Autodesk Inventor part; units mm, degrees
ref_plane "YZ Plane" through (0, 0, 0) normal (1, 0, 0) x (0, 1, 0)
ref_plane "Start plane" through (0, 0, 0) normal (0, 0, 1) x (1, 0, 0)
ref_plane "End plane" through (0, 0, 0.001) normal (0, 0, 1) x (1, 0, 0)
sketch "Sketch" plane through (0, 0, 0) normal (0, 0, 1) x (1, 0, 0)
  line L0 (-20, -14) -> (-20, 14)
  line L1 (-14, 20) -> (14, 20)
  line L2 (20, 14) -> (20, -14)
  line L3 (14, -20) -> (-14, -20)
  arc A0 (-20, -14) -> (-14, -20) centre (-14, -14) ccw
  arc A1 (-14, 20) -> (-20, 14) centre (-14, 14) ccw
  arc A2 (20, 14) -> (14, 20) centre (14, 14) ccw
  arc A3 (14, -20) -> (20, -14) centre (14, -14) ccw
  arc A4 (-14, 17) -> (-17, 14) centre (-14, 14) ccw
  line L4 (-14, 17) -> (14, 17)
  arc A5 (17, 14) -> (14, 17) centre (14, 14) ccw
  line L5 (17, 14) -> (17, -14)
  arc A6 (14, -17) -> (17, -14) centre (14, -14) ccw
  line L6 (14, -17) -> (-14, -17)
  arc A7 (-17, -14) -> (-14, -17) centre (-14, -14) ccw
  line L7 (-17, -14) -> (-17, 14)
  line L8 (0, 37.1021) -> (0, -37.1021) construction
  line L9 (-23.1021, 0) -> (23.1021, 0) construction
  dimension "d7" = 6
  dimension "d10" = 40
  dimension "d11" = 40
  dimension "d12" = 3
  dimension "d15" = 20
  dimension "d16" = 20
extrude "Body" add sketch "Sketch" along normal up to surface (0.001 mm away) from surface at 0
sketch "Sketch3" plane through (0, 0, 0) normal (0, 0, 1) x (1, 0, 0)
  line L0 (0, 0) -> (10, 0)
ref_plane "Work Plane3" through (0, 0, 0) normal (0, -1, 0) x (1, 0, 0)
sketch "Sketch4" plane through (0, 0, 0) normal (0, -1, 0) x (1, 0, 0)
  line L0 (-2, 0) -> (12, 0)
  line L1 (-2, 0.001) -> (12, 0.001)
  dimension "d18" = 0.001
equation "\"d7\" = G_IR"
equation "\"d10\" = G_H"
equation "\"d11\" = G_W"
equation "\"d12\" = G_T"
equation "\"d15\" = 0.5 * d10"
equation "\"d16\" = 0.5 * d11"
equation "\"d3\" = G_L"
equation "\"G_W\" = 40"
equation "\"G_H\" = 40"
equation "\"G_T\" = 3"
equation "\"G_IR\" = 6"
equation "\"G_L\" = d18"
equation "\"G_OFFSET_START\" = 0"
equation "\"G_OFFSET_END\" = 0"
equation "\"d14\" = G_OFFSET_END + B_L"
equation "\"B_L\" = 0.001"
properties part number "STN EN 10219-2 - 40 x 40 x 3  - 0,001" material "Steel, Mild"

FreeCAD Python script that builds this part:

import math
import FreeCAD as App
import Part
import Sketcher
from FreeCAD import Vector

doc = App.newDocument("Part")
body = doc.addObject("PartDesign::Body", "Body")

sketch1 = body.newObject("Sketcher::SketchObject", "Sketch")
sketch1.AttachmentSupport = (doc.getObject("XY_Plane"), [""])
sketch1.MapMode = "FlatFace"
sketch1.addGeometry([
    Part.LineSegment(Vector(-20, 14, 0), Vector(-20, -14, 0)),
    Part.ArcOfCircle(Part.Circle(Vector(-14, -14, 0), Vector(0, 0, 1), 6), math.radians(180), math.radians(270)),
    Part.LineSegment(Vector(-14, -20, 0), Vector(14, -20, 0)),
    Part.ArcOfCircle(Part.Circle(Vector(14, -14, 0), Vector(0, 0, 1), 6), math.radians(-90), math.radians(0)),
    Part.LineSegment(Vector(20, -14, 0), Vector(20, 14, 0)),
    Part.ArcOfCircle(Part.Circle(Vector(14, 14, 0), Vector(0, 0, 1), 6), math.radians(0), math.radians(90)),
    Part.LineSegment(Vector(14, 20, 0), Vector(-14, 20, 0)),
    Part.ArcOfCircle(Part.Circle(Vector(-14, 14, 0), Vector(0, 0, 1), 6), math.radians(90), math.radians(180)),
    Part.ArcOfCircle(Part.Circle(Vector(-14, 14, 0), Vector(0, 0, 1), 3), math.radians(90), math.radians(180)),
    Part.LineSegment(Vector(-14, 17, 0), Vector(14, 17, 0)),
    Part.ArcOfCircle(Part.Circle(Vector(14, 14, 0), Vector(0, 0, 1), 3), math.radians(0), math.radians(90)),
    Part.LineSegment(Vector(17, 14, 0), Vector(17, -14, 0)),
    Part.ArcOfCircle(Part.Circle(Vector(14, -14, 0), Vector(0, 0, 1), 3), math.radians(-90), math.radians(0)),
    Part.LineSegment(Vector(14, -17, 0), Vector(-14, -17, 0)),
    Part.ArcOfCircle(Part.Circle(Vector(-14, -14, 0), Vector(0, 0, 1), 3), math.radians(180), math.radians(270)),
    Part.LineSegment(Vector(-17, -14, 0), Vector(-17, 14, 0)),
], False)
sketch1.addConstraint([
    Sketcher.Constraint("Tangent", 0, 2, 1, 1),
    Sketcher.Constraint("Tangent", 1, 2, 2, 1),
    Sketcher.Constraint("Tangent", 2, 2, 3, 1),
    Sketcher.Constraint("Tangent", 3, 2, 4, 1),
    Sketcher.Constraint("Tangent", 4, 2, 5, 1),
    Sketcher.Constraint("Tangent", 5, 2, 6, 1),
    Sketcher.Constraint("Tangent", 6, 2, 7, 1),
    Sketcher.Constraint("Tangent", 7, 2, 0, 1),
    Sketcher.Constraint("Tangent", 8, 1, 9, 1),
    Sketcher.Constraint("Tangent", 9, 2, 10, 2),
    Sketcher.Constraint("Tangent", 10, 1, 11, 1),
    Sketcher.Constraint("Tangent", 11, 2, 12, 2),
    Sketcher.Constraint("Tangent", 12, 1, 13, 1),
    Sketcher.Constraint("Tangent", 13, 2, 14, 2),
    Sketcher.Constraint("Tangent", 14, 1, 15, 1),
    Sketcher.Constraint("Tangent", 15, 2, 8, 2),
    Sketcher.Constraint("Vertical", 0),
    Sketcher.Constraint("Horizontal", 2),
    Sketcher.Constraint("Vertical", 4),
    Sketcher.Constraint("Horizontal", 6),
    Sketcher.Constraint("Horizontal", 9),
    Sketcher.Constraint("Vertical", 11),
    Sketcher.Constraint("Horizontal", 13),
    Sketcher.Constraint("Vertical", 15),
    Sketcher.Constraint("Coincident", 8, 3, 7, 3),
    Sketcher.Constraint("Coincident", 10, 3, 5, 3),
    Sketcher.Constraint("Coincident", 12, 3, 3, 3),
    Sketcher.Constraint("Equal", 1, 3),
    Sketcher.Constraint("Equal", 3, 5),
    Sketcher.Constraint("Equal", 5, 7),
    Sketcher.Constraint("Equal", 12, 14),
    Sketcher.Constraint("Symmetric", 1, 3, 5, 3, -1, 1),
    Sketcher.Constraint("Equal", 13, 0),
    Sketcher.Constraint("Radius", 1, 6.0),
    Sketcher.Constraint("Radius", 8, 3.0),
    Sketcher.Constraint("DistanceX", 0, 2, -1, 1, 20.0),
])
pad1 = body.newObject("PartDesign::Pad", "Pad")
pad1.Profile = sketch1
pad1.Length = 0.001

doc.recompute()
